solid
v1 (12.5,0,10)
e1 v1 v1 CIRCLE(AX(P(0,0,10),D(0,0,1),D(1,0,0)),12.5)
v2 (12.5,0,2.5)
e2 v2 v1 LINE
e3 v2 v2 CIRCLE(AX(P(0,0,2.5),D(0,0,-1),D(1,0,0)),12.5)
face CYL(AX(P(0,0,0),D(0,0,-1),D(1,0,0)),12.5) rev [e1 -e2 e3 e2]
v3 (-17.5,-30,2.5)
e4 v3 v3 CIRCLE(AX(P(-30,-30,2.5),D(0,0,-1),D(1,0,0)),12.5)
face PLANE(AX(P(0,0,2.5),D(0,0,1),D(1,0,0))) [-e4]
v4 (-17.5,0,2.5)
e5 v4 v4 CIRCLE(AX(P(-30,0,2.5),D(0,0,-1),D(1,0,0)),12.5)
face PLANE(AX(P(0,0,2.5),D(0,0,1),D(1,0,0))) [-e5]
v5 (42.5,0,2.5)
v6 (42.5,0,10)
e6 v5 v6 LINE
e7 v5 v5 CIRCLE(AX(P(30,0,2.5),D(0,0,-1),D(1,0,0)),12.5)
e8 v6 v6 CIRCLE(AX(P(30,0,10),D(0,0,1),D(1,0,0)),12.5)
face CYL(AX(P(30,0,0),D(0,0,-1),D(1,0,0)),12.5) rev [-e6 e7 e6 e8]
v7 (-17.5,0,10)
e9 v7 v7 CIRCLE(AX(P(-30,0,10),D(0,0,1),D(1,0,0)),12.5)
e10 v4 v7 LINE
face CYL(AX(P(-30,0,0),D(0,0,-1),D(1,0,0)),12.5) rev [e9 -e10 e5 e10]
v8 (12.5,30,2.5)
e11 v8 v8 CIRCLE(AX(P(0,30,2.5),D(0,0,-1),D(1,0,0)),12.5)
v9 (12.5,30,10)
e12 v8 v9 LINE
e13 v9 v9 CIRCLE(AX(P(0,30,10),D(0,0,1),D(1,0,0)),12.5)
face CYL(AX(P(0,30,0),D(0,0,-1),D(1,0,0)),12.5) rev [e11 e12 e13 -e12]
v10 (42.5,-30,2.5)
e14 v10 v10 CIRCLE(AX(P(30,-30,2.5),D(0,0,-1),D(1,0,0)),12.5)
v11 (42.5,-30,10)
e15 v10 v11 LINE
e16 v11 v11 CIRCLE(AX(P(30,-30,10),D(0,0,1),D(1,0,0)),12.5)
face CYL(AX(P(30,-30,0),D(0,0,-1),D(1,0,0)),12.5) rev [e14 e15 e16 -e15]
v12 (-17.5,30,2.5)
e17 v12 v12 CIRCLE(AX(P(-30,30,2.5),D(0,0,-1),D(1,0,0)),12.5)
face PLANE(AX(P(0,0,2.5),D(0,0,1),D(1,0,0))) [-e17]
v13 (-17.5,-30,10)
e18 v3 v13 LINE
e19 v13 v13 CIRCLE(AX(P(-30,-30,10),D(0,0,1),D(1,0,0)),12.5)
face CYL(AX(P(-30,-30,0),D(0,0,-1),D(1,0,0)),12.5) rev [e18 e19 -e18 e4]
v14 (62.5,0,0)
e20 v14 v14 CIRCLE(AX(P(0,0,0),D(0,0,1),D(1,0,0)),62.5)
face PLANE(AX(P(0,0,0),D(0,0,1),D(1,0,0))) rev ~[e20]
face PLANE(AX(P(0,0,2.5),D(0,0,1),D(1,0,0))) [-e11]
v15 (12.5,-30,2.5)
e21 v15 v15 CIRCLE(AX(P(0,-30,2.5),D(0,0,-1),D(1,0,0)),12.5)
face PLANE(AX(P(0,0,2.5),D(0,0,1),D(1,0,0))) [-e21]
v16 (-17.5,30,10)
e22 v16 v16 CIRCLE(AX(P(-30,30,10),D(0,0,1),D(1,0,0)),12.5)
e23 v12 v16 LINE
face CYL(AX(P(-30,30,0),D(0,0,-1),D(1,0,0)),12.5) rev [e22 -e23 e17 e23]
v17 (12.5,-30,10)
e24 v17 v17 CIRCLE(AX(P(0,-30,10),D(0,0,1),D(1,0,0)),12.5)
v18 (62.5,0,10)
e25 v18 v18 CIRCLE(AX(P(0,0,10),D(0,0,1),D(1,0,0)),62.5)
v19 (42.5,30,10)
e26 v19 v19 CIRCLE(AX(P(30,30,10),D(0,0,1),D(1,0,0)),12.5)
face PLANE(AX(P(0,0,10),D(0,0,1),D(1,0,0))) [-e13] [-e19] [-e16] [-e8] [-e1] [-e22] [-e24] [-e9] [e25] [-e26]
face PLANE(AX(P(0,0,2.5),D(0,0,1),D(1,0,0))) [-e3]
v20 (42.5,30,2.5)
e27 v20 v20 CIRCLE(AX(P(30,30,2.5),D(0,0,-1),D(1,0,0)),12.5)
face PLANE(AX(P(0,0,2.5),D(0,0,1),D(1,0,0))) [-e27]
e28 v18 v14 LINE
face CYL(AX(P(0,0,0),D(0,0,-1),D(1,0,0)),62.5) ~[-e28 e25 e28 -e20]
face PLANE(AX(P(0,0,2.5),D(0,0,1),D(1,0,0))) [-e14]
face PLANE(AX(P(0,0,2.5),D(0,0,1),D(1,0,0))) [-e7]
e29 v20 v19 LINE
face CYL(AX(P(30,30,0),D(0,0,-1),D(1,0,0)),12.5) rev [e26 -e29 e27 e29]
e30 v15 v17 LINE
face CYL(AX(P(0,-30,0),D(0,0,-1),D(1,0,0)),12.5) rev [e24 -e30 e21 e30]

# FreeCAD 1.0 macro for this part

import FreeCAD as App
import Part
import Sketcher
Q = App.Units.Quantity

doc = App.newDocument("Part")
body = doc.addObject("PartDesign::Body", "Body")

sketch1 = body.newObject("Sketcher::SketchObject", "Sketch")
sketch1.AttachmentSupport = (doc.getObject("XY_Plane"), [""])
sketch1.MapMode = "FlatFace"
sketch1.addGeometry(Part.Circle(App.Vector(0, 0, 0), App.Vector(0, 0, 1), 62.5), False)
sketch1.addGeometry(Part.Circle(App.Vector(-30, -30, 0), App.Vector(0, 0, 1), 12.5), False)
sketch1.addGeometry(Part.Circle(App.Vector(0, -30, 0), App.Vector(0, 0, 1), 12.5), False)
sketch1.addGeometry(Part.Circle(App.Vector(30, -30, 0), App.Vector(0, 0, 1), 12.5), False)
sketch1.addGeometry(Part.Circle(App.Vector(-30, 0, 0), App.Vector(0, 0, 1), 12.5), False)
sketch1.addGeometry(Part.Circle(App.Vector(-30, 30, 0), App.Vector(0, 0, 1), 12.5), False)
sketch1.addGeometry(Part.Circle(App.Vector(0, 0, 0), App.Vector(0, 0, 1), 12.5), False)
sketch1.addGeometry(Part.Circle(App.Vector(30, 0, 0), App.Vector(0, 0, 1), 12.5), False)
sketch1.addGeometry(Part.Circle(App.Vector(0, 30, 0), App.Vector(0, 0, 1), 12.5), False)
sketch1.addGeometry(Part.Circle(App.Vector(30, 30, 0), App.Vector(0, 0, 1), 12.5), False)
sketch1.addConstraint(Sketcher.Constraint("Coincident", 0, 3, -1, 1))
sketch1.addConstraint(Sketcher.Constraint("Coincident", 6, 3, -1, 1))
sketch1.addConstraint(Sketcher.Constraint("Equal", 1, 2))
sketch1.addConstraint(Sketcher.Constraint("Equal", 2, 3))
sketch1.addConstraint(Sketcher.Constraint("Equal", 3, 4))
sketch1.addConstraint(Sketcher.Constraint("Equal", 4, 5))
sketch1.addConstraint(Sketcher.Constraint("Equal", 5, 6))
sketch1.addConstraint(Sketcher.Constraint("Equal", 6, 7))
sketch1.addConstraint(Sketcher.Constraint("Equal", 7, 8))
sketch1.addConstraint(Sketcher.Constraint("Equal", 8, 9))
sketch1.addConstraint(Sketcher.Constraint("Symmetric", 3, 3, 5, 3, -1, 1))
sketch1.addConstraint(Sketcher.Constraint("Symmetric", 4, 3, 7, 3, -1, 1))
sketch1.addConstraint(Sketcher.Constraint("Symmetric", 2, 3, 8, 3, -1, 1))
sketch1.addConstraint(Sketcher.Constraint("Symmetric", 1, 3, 9, 3, -1, 1))
sketch1.addConstraint(Sketcher.Constraint("Symmetric", 1, 3, 3, 3, -2))
sketch1.addConstraint(Sketcher.Constraint("PointOnObject", 2, 3, -2))
sketch1.addConstraint(Sketcher.Constraint("PointOnObject", 4, 3, -1))
sketch1.addConstraint(Sketcher.Constraint("Horizontal", 1, 3, 2, 3))
sketch1.addConstraint(Sketcher.Constraint("Vertical", 1, 3, 4, 3))
sketch1.addConstraint(Sketcher.Constraint("Diameter", 0, Q("125 mm")))
sketch1.addConstraint(Sketcher.Constraint("Diameter", 1, Q("25 mm")))
sketch1.addConstraint(Sketcher.Constraint("DistanceX", 1, 3, -1, 1, Q("30 mm")))
sketch1.addConstraint(Sketcher.Constraint("DistanceY", 1, 3, -1, 1, Q("30 mm")))
pad1 = body.newObject("PartDesign::Pad", "Pad")
pad1.Profile = sketch1
pad1.Length = 10

sketch2 = body.newObject("Sketcher::SketchObject", "Sketch001")
sketch2.AttachmentSupport = (doc.getObject("XY_Plane"), [""])
sketch2.MapMode = "FlatFace"
sketch2.addGeometry(Part.Circle(App.Vector(0, 0, 0), App.Vector(0, 0, 1), 62.5), False)
sketch2.addConstraint(Sketcher.Constraint("Coincident", 0, 3, -1, 1))
sketch2.addConstraint(Sketcher.Constraint("Diameter", 0, Q("125 mm")))
pad2 = body.newObject("PartDesign::Pad", "Pad001")
pad2.Profile = sketch2
pad2.Length = 2.5

doc.recompute()
